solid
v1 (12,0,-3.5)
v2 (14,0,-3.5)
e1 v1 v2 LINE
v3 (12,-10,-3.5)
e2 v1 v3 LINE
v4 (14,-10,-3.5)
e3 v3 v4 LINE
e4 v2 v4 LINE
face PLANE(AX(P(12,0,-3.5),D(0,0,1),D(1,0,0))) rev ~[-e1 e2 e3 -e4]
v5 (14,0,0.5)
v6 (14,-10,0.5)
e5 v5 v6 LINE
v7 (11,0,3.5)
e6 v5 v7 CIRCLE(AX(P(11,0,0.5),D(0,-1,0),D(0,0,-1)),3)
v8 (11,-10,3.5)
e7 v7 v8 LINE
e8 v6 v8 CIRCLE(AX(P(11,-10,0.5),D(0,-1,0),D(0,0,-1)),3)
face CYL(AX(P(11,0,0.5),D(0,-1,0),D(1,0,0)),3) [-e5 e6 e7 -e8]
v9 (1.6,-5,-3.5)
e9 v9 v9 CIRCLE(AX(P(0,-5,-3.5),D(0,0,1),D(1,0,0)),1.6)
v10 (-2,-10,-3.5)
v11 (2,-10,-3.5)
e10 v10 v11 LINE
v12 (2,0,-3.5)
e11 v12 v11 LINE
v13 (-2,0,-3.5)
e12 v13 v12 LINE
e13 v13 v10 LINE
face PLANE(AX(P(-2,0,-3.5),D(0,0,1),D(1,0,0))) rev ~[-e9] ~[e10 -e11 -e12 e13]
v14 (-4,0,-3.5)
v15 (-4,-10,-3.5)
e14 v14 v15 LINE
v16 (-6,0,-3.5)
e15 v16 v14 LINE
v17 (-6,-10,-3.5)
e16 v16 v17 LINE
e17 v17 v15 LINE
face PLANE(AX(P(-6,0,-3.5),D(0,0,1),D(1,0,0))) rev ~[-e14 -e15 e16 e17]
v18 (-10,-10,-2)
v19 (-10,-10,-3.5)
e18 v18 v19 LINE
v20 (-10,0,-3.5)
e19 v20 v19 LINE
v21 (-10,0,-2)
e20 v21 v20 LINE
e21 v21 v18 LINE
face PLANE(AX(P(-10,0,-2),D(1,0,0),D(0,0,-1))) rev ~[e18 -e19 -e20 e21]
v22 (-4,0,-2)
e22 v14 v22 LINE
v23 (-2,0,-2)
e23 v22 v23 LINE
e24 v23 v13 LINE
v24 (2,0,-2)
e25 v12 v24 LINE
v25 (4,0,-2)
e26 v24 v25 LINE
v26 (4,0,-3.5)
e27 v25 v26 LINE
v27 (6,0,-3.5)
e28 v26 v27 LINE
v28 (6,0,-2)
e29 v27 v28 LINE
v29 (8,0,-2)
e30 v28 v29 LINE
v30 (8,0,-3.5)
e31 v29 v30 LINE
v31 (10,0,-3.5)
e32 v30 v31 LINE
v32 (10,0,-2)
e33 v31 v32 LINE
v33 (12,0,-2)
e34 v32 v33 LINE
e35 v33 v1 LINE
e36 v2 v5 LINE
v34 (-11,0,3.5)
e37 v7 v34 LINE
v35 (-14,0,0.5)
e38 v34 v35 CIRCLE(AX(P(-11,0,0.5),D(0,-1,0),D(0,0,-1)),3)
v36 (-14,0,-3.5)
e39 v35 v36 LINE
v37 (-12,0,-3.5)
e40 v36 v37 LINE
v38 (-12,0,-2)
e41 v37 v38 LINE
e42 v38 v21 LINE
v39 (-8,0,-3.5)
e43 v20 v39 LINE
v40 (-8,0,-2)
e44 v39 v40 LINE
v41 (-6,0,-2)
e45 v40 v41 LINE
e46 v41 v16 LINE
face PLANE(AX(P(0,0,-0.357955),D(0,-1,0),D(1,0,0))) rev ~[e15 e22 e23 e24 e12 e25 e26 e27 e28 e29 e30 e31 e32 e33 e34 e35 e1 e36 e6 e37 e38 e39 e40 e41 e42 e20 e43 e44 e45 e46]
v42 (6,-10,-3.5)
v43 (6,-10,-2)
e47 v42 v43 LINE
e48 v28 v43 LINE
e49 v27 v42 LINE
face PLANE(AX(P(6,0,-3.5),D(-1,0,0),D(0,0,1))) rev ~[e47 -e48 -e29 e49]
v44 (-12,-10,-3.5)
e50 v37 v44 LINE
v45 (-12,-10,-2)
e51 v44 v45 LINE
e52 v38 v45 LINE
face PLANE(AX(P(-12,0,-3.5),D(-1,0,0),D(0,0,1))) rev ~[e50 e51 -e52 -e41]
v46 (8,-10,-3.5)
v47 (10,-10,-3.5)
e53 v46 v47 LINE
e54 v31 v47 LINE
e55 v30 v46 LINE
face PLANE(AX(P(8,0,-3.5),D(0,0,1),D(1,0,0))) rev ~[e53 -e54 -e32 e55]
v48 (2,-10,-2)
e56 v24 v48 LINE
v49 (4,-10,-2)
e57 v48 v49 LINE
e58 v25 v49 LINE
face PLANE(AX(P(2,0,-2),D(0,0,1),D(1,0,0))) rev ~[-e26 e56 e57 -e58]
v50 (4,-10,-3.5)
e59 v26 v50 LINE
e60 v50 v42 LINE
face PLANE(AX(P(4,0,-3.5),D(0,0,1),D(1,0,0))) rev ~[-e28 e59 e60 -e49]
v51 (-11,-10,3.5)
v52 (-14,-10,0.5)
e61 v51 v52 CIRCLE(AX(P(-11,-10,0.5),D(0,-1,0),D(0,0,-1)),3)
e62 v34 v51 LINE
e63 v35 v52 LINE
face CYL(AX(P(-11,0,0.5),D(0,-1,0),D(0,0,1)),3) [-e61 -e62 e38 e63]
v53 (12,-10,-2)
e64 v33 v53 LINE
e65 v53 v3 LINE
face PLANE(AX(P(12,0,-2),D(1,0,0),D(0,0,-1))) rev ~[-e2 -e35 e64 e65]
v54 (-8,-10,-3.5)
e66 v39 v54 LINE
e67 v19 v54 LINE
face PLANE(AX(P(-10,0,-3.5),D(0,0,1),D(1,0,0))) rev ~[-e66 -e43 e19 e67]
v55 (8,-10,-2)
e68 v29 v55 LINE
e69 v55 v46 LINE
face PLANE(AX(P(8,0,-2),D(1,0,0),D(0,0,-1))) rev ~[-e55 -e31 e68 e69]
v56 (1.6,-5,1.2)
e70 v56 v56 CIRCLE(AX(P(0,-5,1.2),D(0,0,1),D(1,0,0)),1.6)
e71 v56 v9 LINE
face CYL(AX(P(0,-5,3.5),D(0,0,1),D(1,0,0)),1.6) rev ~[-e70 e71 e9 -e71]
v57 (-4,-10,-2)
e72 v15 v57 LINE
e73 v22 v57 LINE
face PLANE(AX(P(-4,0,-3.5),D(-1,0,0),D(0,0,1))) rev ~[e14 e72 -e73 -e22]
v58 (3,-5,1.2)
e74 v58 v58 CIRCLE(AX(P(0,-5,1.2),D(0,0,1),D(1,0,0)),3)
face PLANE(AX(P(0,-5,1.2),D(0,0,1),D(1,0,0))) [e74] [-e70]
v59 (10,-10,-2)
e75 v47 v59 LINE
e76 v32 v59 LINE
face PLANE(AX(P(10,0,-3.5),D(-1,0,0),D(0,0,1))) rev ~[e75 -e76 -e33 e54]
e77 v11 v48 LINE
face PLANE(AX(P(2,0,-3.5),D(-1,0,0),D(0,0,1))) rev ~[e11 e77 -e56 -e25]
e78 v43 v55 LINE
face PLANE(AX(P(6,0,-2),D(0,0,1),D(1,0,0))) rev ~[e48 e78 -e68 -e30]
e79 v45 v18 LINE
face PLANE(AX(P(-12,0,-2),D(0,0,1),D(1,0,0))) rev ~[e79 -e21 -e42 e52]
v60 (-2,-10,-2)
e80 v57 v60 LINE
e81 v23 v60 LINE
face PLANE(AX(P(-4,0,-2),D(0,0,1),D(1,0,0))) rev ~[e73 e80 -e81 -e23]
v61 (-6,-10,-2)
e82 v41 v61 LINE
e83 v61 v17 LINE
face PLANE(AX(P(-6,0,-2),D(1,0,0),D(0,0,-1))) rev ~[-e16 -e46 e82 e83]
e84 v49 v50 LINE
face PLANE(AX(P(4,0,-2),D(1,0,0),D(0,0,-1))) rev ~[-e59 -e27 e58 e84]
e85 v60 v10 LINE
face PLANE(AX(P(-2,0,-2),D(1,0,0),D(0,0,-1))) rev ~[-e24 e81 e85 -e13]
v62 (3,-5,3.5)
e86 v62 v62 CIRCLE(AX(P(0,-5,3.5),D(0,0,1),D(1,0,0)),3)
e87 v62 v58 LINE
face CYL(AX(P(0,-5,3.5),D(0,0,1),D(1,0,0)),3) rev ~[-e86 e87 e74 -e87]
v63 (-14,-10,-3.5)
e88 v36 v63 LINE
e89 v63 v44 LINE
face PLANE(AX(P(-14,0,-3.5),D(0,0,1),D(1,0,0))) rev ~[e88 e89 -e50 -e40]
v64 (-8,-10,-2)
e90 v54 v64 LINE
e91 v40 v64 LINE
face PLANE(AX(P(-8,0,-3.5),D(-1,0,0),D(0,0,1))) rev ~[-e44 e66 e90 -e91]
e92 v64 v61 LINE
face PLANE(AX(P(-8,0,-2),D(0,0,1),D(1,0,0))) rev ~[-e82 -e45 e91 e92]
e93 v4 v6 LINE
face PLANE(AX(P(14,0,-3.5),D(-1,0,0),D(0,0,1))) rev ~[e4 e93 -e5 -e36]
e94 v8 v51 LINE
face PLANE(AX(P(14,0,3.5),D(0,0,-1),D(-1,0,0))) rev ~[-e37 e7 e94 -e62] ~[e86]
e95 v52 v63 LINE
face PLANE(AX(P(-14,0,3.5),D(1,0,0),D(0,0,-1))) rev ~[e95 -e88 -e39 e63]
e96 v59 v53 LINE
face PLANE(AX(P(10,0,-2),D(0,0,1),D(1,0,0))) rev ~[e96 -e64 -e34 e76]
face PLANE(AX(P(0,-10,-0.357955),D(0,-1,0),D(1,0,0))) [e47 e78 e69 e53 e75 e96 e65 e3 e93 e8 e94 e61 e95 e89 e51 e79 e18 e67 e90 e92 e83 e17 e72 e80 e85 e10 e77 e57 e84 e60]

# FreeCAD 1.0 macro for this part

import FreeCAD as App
import Part
import Sketcher
Q = App.Units.Quantity


def edges_at(feature, points):
    """Names of the edges that pass closest to the given points."""
    edges = feature.Shape.Edges
    near = lambda p: min(range(len(edges)), key=lambda i: edges[i].distToShape(Part.Vertex(*p))[0])
    return sorted({f"Edge{near(p) + 1}" for p in points})


def add_polygon(sketch, points):
    """Adds a closed chain of lines whose ends are joined by coincident constraints."""
    first, n = sketch.GeometryCount, len(points)
    for a, b in zip(points, points[1:] + points[:1]):
        sketch.addGeometry(Part.LineSegment(App.Vector(*a, 0), App.Vector(*b, 0)), False)
    for i in range(n):
        sketch.addConstraint(Sketcher.Constraint("Coincident", first + i, 2, first + (i + 1) % n, 1))

doc = App.newDocument("Part")
body = doc.addObject("PartDesign::Body", "Body")

# Sketch on XZ plane
sketch1 = body.newObject("Sketcher::SketchObject", "Sketch")
sketch1.AttachmentSupport = (doc.getObject("XZ_Plane"), [""])
sketch1.MapMode = "FlatFace"
add_polygon(sketch1, [(12, -3.5), (14, -3.5), (14, 3.5), (-14, 3.5), (-14, -3.5), (-12, -3.5), (-12, -2), (-10, -2), (-10, -3.5), (-8, -3.5), (-8, -2), (-6, -2), (-6, -3.5), (-4, -3.5), (-4, -2), (-2, -2), (-2, -3.5), (2, -3.5), (2, -2), (4, -2), (4, -3.5), (6, -3.5), (6, -2), (8, -2), (8, -3.5), (10, -3.5), (10, -2), (12, -2)])  # lines 0-27
sketch1.addConstraint([
    Sketcher.Constraint("Horizontal", 0),
    Sketcher.Constraint("Vertical", 1),
    Sketcher.Constraint("Horizontal", 2),
    Sketcher.Constraint("Vertical", 3),
    Sketcher.Constraint("Horizontal", 4),
    Sketcher.Constraint("Vertical", 5),
    Sketcher.Constraint("Horizontal", 6),
    Sketcher.Constraint("Vertical", 7),
    Sketcher.Constraint("Horizontal", 8),
    Sketcher.Constraint("Vertical", 9),
    Sketcher.Constraint("Horizontal", 10),
    Sketcher.Constraint("Vertical", 11),
    Sketcher.Constraint("Horizontal", 12),
    Sketcher.Constraint("Vertical", 13),
    Sketcher.Constraint("Horizontal", 14),
    Sketcher.Constraint("Vertical", 15),
    Sketcher.Constraint("Horizontal", 16),
    Sketcher.Constraint("Vertical", 17),
    Sketcher.Constraint("Horizontal", 18),
    Sketcher.Constraint("Vertical", 19),
    Sketcher.Constraint("Horizontal", 20),
    Sketcher.Constraint("Vertical", 21),
    Sketcher.Constraint("Horizontal", 22),
    Sketcher.Constraint("Vertical", 23),
    Sketcher.Constraint("Horizontal", 24),
    Sketcher.Constraint("Vertical", 25),
    Sketcher.Constraint("Horizontal", 26),
    Sketcher.Constraint("Vertical", 27),
    Sketcher.Constraint("Symmetric", 0, 2, 2, 2, -1, 1),
    Sketcher.Constraint("Symmetric", 14, 2, 17, 2, -2),
    Sketcher.Constraint("Symmetric", 12, 2, 19, 2, -2),
    Sketcher.Constraint("Symmetric", 10, 2, 21, 2, -2),
    Sketcher.Constraint("Symmetric", 8, 2, 23, 2, -2),
    Sketcher.Constraint("Symmetric", 6, 2, 25, 2, -2),
    Sketcher.Constraint("Symmetric", 4, 2, 27, 2, -2),
    Sketcher.Constraint("Horizontal", 4, 2, 7, 2),
    Sketcher.Constraint("Horizontal", 6, 2, 9, 2),
    Sketcher.Constraint("Horizontal", 8, 2, 11, 2),
    Sketcher.Constraint("Horizontal", 10, 2, 13, 2),
    Sketcher.Constraint("Horizontal", 12, 2, 15, 2),
    Sketcher.Constraint("Equal", 4, 6),
    Sketcher.Constraint("Equal", 6, 8),
    Sketcher.Constraint("Equal", 8, 10),
    Sketcher.Constraint("Equal", 10, 12),
    Sketcher.Constraint("Equal", 12, 14),
    Sketcher.Constraint("DistanceX", 0, 1, 0, 2, Q("2 mm")),
    Sketcher.Constraint("DistanceX", 2, 2, 2, 1, Q("28 mm")),
    Sketcher.Constraint("DistanceY", 1, 1, 1, 2, Q("7 mm")),
    Sketcher.Constraint("DistanceY", 5, 1, 5, 2, Q("1.5 mm")),
])
pad1 = body.newObject("PartDesign::Pad", "Pad")
pad1.Profile = sketch1
pad1.Length = 10

# Sketch on XY plane
sketch2 = body.newObject("Sketcher::SketchObject", "Sketch001")
sketch2.AttachmentSupport = (doc.getObject("XY_Plane"), [""])
sketch2.MapMode = "FlatFace"
sketch2.AttachmentOffset = App.Placement(App.Vector(0, 0, 3.5), App.Rotation())
sketch2.addGeometry(Part.Circle(App.Vector(0, -5, 0), App.Vector(0, 0, 1), 1.6), False)
sketch2.addConstraint([
    Sketcher.Constraint("PointOnObject", 0, 3, -2),
    Sketcher.Constraint("Diameter", 0, Q("3.2 mm")),
    Sketcher.Constraint("DistanceY", 0, 3, -1, 1, Q("5 mm")),
])
pocket1 = body.newObject("PartDesign::Pocket", "Pocket")
pocket1.Profile = sketch2
pocket1.Length = 25

# Sketch on XY plane
sketch3 = body.newObject("Sketcher::SketchObject", "Sketch002")
sketch3.AttachmentSupport = (doc.getObject("XY_Plane"), [""])
sketch3.MapMode = "FlatFace"
sketch3.AttachmentOffset = App.Placement(App.Vector(0, 0, 3.5), App.Rotation())
sketch3.addGeometry([
    Part.Circle(App.Vector(0, -5, 0), App.Vector(0, 0, 1), 3),
    Part.Circle(App.Vector(0, -5, 0), App.Vector(0, 0, 1), 1.6),
], False)
sketch3.addConstraint([
    Sketcher.Constraint("Coincident", 1, 3, 0, 3),
    Sketcher.Constraint("PointOnObject", 0, 3, -2),
    Sketcher.Constraint("Diameter", 0, Q("6 mm")),
    Sketcher.Constraint("Diameter", 1, Q("3.2 mm")),
    Sketcher.Constraint("DistanceY", 0, 3, -1, 1, Q("5 mm")),
])
pocket2 = body.newObject("PartDesign::Pocket", "Pocket001")
pocket2.Profile = sketch3
pocket2.Length = 2.3
doc.recompute()

fillet = body.newObject("PartDesign::Fillet", "Fillet")
fillet.Base = (pocket2, edges_at(pocket2, [(-14, -5, 3.5), (14, -5, 3.5)]))
fillet.Radius = 3

doc.recompute()
